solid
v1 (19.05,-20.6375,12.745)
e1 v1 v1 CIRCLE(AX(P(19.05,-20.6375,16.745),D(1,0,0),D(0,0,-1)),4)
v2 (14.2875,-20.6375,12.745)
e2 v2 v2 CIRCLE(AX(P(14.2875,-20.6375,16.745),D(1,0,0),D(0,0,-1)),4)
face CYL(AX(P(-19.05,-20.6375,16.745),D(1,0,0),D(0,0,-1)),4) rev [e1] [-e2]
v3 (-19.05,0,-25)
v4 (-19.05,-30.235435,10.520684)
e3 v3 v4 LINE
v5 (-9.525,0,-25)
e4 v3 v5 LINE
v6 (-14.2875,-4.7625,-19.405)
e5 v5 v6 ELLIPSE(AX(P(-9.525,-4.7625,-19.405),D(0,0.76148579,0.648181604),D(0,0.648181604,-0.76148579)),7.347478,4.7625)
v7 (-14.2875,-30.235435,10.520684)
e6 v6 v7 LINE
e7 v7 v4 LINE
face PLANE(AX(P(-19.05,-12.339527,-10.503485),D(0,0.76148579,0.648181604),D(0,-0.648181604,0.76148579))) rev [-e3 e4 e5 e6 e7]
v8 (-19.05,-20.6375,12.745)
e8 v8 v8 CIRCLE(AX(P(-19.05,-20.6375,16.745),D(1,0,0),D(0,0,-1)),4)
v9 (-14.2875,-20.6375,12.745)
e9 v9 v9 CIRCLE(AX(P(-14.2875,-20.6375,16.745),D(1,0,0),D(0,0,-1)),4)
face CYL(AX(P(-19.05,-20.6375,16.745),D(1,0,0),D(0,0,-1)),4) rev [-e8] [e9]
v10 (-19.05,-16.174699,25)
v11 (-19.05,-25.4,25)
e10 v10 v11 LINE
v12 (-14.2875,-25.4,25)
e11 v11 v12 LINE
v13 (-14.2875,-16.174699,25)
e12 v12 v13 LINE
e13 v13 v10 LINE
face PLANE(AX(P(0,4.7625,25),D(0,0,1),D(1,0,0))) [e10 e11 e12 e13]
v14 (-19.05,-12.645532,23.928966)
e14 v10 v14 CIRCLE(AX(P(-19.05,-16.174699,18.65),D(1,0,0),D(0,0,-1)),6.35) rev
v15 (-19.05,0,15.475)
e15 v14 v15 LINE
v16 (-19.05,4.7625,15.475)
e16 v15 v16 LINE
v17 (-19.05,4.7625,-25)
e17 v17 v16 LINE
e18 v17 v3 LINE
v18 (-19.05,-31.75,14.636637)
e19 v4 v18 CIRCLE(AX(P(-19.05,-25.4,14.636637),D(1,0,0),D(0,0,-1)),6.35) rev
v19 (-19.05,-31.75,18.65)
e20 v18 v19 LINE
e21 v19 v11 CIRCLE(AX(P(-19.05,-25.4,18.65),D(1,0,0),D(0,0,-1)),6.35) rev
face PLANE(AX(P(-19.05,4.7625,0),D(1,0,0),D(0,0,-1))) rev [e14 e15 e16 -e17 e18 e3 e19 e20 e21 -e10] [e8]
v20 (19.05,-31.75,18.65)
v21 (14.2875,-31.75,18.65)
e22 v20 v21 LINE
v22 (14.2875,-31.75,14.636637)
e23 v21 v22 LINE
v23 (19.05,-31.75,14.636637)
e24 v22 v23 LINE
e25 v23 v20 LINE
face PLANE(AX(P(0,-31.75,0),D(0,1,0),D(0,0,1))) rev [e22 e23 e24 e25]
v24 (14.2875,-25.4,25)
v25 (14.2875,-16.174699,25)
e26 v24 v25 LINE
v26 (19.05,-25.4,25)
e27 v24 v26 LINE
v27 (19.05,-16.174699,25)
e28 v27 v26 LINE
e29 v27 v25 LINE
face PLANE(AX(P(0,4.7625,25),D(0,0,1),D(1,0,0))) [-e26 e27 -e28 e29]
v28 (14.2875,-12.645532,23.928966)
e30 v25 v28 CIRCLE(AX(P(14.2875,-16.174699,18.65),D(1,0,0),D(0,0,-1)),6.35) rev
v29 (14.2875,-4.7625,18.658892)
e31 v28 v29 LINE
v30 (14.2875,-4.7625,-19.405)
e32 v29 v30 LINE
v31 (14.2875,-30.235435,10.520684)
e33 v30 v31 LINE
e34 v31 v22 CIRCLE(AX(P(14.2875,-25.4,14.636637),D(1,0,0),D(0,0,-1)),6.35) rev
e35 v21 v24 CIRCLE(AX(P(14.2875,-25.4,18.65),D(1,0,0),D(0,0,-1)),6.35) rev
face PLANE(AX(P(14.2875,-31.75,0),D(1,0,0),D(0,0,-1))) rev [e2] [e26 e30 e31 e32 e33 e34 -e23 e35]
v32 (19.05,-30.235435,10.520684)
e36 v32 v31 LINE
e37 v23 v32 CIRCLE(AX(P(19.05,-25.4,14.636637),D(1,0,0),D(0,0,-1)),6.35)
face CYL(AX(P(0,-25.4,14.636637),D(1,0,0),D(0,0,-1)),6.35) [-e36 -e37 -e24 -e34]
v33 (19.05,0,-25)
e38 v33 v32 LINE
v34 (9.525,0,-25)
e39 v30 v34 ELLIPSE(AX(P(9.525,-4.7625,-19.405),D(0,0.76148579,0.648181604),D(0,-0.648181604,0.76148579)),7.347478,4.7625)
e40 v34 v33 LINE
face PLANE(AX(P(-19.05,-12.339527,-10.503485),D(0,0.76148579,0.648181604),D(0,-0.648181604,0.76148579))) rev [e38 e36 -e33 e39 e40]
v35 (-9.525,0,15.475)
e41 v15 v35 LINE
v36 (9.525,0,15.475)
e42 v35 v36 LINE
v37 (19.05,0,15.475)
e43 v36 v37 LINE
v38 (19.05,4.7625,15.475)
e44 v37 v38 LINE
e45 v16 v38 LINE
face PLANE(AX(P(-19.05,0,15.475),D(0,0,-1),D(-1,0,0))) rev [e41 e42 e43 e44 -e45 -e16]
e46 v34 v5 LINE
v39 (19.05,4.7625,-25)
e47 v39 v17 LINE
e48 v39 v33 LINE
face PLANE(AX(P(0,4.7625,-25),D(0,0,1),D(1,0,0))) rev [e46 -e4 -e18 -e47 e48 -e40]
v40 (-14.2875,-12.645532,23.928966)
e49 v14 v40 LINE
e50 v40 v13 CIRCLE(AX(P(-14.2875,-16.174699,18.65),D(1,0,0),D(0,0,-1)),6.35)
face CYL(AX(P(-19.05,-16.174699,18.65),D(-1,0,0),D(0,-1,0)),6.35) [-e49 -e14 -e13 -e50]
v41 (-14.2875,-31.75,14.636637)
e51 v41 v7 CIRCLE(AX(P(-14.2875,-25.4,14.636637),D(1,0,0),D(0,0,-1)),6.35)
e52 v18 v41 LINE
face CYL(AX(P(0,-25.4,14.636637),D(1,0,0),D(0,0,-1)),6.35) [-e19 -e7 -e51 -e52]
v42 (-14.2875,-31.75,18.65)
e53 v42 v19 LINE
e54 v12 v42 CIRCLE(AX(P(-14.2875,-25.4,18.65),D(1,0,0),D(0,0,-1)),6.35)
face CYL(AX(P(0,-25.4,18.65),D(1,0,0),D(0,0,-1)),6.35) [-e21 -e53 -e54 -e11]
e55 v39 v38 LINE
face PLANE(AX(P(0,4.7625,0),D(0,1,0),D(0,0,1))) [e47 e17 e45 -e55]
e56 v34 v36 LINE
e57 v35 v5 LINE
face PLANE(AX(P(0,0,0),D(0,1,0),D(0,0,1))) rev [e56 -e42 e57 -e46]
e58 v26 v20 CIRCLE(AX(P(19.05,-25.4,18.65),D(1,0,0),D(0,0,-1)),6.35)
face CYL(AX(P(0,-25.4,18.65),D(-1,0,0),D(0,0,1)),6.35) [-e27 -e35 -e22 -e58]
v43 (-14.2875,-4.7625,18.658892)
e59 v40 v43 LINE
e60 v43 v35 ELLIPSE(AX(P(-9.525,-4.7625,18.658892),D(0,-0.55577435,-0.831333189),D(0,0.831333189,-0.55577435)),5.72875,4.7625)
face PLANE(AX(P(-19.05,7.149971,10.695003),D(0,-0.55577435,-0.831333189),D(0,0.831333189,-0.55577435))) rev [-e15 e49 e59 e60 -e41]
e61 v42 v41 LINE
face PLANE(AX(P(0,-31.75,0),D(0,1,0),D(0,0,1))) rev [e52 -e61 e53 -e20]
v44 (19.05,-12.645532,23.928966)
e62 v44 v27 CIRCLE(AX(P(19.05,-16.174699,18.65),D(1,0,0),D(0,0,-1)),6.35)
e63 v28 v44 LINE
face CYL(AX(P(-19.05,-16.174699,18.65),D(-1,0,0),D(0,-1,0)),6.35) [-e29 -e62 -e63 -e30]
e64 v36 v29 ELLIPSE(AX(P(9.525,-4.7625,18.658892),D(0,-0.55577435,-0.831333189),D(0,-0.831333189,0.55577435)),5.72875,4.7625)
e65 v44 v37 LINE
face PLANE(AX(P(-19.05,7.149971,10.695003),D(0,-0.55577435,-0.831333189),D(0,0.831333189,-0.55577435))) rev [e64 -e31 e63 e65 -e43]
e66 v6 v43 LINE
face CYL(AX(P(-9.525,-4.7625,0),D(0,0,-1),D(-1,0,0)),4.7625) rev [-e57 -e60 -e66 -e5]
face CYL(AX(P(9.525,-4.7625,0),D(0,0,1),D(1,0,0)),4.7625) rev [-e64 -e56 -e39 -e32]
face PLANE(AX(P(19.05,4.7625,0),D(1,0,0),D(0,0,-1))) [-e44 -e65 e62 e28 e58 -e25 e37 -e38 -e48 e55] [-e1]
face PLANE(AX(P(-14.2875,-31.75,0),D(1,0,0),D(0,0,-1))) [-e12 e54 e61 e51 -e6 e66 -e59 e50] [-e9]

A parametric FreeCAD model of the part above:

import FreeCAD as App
import Part
import Sketcher

V = App.Vector
Q = App.Units.Quantity


def edges_at(feature, points):
    """Names of the edges that pass closest to the given points."""
    edges = feature.Shape.Edges
    near = lambda p: min(range(len(edges)), key=lambda i: edges[i].distToShape(Part.Vertex(*p))[0])
    return sorted({f"Edge{near(p) + 1}" for p in points})


def add_polygon(sketch, points):
    """Adds a closed chain of lines whose ends are joined by coincident constraints."""
    first, n = sketch.GeometryCount, len(points)
    for a, b in zip(points, points[1:] + points[:1]):
        sketch.addGeometry(Part.LineSegment(App.Vector(*a, 0), App.Vector(*b, 0)), False)
    for i in range(n):
        sketch.addConstraint(Sketcher.Constraint("Coincident", first + i, 2, first + (i + 1) % n, 1))

doc = App.newDocument("Part")
body = doc.addObject("PartDesign::Body", "Body")

# Sketch on XZ plane
sketch1 = body.newObject("Sketcher::SketchObject", "Sketch")
sketch1.AttachmentSupport = (doc.getObject("XZ_Plane"), [""])
sketch1.MapMode = "FlatFace"
add_polygon(sketch1, [(-19, -25), (-19, 25), (19, 25), (19, -25)])  # lines 0-3
sketch1.addConstraint(Sketcher.Constraint("Vertical", 0))
sketch1.addConstraint(Sketcher.Constraint("Horizontal", 1))
sketch1.addConstraint(Sketcher.Constraint("Vertical", 2))
sketch1.addConstraint(Sketcher.Constraint("Horizontal", 3))
sketch1.addConstraint(Sketcher.Constraint("Symmetric", 0, 2, 2, 2, -1, 1))
sketch1.addConstraint(Sketcher.Constraint("DistanceX", 1, 1, 1, 2, Q("1.5 in")))
sketch1.addConstraint(Sketcher.Constraint("DistanceY", 0, 1, 0, 2, 50.0))
pad1 = body.newObject("PartDesign::Pad", "Pad")
pad1.Profile = sketch1
pad1.Length = Q("0.1875 in")
pad1.Reversed = True

# Sketch on XZ plane
sketch2 = body.newObject("Sketcher::SketchObject", "Sketch001")
sketch2.AttachmentSupport = (doc.getObject("XZ_Plane"), [""])
sketch2.MapMode = "FlatFace"
add_polygon(sketch2, [(-19.1, -25), (-19.1, 25), (-14.3, 25), (-14.3, -25)])  # lines 0-3
add_polygon(sketch2, [(14.3, -25), (14.3, 25), (19.1, 25), (19.1, -25)])  # lines 4-7
sketch2.addConstraint(Sketcher.Constraint("Vertical", 0))
sketch2.addConstraint(Sketcher.Constraint("Horizontal", 1))
sketch2.addConstraint(Sketcher.Constraint("Vertical", 2))
sketch2.addConstraint(Sketcher.Constraint("Horizontal", 3))
sketch2.addConstraint(Sketcher.Constraint("Vertical", 4))
sketch2.addConstraint(Sketcher.Constraint("Horizontal", 5))
sketch2.addConstraint(Sketcher.Constraint("Vertical", 6))
sketch2.addConstraint(Sketcher.Constraint("Horizontal", 7))
sketch2.addConstraint(Sketcher.Constraint("Symmetric", 2, 2, 4, 2, -1, 1))
sketch2.addConstraint(Sketcher.Constraint("Symmetric", 0, 2, 6, 2, -1, 1))
sketch2.addConstraint(Sketcher.Constraint("Horizontal", 1, 2, 4, 2))
sketch2.addConstraint(Sketcher.Constraint("DistanceX", 0, 2, 5, 2, Q("1.5 in")))
sketch2.addConstraint(Sketcher.Constraint("DistanceX", 1, 1, 1, 2, Q("0.1875 in")))
sketch2.addConstraint(Sketcher.Constraint("DistanceY", 0, 1, 0, 2, 50.0))
pad2 = body.newObject("PartDesign::Pad", "Pad001")
pad2.Profile = sketch2
pad2.Length = Q("1.25 in")

# Sketch on YZ plane
sketch3 = body.newObject("Sketcher::SketchObject", "Sketch002")
sketch3.AttachmentSupport = (doc.getObject("YZ_Plane"), [""])
sketch3.MapMode = "FlatFace"
sketch3.AttachmentOffset = App.Placement(V(0, 0, 0.75 * 25.4), App.Rotation())
add_polygon(sketch3, [(-31.8, -25), (0, -25), (-31.8, 12.3)])  # lines 0-2
add_polygon(sketch3, [(0, 15.5), (4.8, 15.5), (4.8, 25), (-14.2, 25)])  # lines 3-6
sketch3.addGeometry(Part.Circle(V(-20.6, 16.7, 0), V(0, 0, 1), 4), False)  # 7
sketch3.addConstraint(Sketcher.Constraint("Horizontal", 0))
sketch3.addConstraint(Sketcher.Constraint("Vertical", 2))
sketch3.addConstraint(Sketcher.Constraint("Horizontal", 3))
sketch3.addConstraint(Sketcher.Constraint("Vertical", 4))
sketch3.addConstraint(Sketcher.Constraint("Horizontal", 5))
sketch3.addConstraint(Sketcher.Constraint("PointOnObject", 0, 2, -2))
sketch3.addConstraint(Sketcher.Constraint("PointOnObject", 6, 2, -2))
sketch3.addConstraint(Sketcher.Constraint("DistanceX", 7, 3, 3, 2, Q("1 in")))
sketch3.addConstraint(Sketcher.Constraint("DistanceX", 0, 1, 0, 2, Q("1.25 in")))
sketch3.addConstraint(Sketcher.Constraint("DistanceY", 1, 2, 4, 2, Q("0.5 in")))
sketch3.addConstraint(Sketcher.Constraint("Diameter", 7, 8.0))
sketch3.addConstraint(Sketcher.Constraint("DistanceX", 3, 1, 3, 2, Q("0.1875 in")))
sketch3.addConstraint(Sketcher.Constraint("DistanceY", 4, 1, 4, 2, Q("0.375 in")))
sketch3.addConstraint(Sketcher.Constraint("DistanceY", 3, 2, 7, 3, Q("0.05 in")))
sketch3.addConstraint(Sketcher.Constraint("DistanceY", 2, 2, 2, 1, 37.3))
sketch3.addConstraint(Sketcher.Constraint("DistanceY", -1, 1, 7, 3, 16.745))
sketch3.addConstraint(Sketcher.Constraint("Distance", 6, 17.13825))
pocket1 = body.newObject("PartDesign::Pocket", "Pocket")
pocket1.Profile = sketch3
pocket1.Type = "ThroughAll"
doc.recompute()

fillet = body.newObject("PartDesign::Fillet", "Fillet")
fillet.Base = (pocket1, edges_at(pocket1, [
    (-16.669, -31.75, 25),
    (16.669, -31.75, 25),
    (16.669, -31.75, 12.3),
    (-16.669, -31.75, 12.3),
    (16.669, -14.248, 25),
    (-16.669, -14.248, 25),
]))
fillet.Radius = Q("0.25 in")
doc.recompute()

fillet2 = body.newObject("PartDesign::Fillet", "Fillet001")
fillet2.Base = (fillet, edges_at(fillet, [(14.287, 0, -4.763), (-14.287, 0, -4.763)]))
fillet2.Radius = Q("0.1875 in")

doc.recompute()
